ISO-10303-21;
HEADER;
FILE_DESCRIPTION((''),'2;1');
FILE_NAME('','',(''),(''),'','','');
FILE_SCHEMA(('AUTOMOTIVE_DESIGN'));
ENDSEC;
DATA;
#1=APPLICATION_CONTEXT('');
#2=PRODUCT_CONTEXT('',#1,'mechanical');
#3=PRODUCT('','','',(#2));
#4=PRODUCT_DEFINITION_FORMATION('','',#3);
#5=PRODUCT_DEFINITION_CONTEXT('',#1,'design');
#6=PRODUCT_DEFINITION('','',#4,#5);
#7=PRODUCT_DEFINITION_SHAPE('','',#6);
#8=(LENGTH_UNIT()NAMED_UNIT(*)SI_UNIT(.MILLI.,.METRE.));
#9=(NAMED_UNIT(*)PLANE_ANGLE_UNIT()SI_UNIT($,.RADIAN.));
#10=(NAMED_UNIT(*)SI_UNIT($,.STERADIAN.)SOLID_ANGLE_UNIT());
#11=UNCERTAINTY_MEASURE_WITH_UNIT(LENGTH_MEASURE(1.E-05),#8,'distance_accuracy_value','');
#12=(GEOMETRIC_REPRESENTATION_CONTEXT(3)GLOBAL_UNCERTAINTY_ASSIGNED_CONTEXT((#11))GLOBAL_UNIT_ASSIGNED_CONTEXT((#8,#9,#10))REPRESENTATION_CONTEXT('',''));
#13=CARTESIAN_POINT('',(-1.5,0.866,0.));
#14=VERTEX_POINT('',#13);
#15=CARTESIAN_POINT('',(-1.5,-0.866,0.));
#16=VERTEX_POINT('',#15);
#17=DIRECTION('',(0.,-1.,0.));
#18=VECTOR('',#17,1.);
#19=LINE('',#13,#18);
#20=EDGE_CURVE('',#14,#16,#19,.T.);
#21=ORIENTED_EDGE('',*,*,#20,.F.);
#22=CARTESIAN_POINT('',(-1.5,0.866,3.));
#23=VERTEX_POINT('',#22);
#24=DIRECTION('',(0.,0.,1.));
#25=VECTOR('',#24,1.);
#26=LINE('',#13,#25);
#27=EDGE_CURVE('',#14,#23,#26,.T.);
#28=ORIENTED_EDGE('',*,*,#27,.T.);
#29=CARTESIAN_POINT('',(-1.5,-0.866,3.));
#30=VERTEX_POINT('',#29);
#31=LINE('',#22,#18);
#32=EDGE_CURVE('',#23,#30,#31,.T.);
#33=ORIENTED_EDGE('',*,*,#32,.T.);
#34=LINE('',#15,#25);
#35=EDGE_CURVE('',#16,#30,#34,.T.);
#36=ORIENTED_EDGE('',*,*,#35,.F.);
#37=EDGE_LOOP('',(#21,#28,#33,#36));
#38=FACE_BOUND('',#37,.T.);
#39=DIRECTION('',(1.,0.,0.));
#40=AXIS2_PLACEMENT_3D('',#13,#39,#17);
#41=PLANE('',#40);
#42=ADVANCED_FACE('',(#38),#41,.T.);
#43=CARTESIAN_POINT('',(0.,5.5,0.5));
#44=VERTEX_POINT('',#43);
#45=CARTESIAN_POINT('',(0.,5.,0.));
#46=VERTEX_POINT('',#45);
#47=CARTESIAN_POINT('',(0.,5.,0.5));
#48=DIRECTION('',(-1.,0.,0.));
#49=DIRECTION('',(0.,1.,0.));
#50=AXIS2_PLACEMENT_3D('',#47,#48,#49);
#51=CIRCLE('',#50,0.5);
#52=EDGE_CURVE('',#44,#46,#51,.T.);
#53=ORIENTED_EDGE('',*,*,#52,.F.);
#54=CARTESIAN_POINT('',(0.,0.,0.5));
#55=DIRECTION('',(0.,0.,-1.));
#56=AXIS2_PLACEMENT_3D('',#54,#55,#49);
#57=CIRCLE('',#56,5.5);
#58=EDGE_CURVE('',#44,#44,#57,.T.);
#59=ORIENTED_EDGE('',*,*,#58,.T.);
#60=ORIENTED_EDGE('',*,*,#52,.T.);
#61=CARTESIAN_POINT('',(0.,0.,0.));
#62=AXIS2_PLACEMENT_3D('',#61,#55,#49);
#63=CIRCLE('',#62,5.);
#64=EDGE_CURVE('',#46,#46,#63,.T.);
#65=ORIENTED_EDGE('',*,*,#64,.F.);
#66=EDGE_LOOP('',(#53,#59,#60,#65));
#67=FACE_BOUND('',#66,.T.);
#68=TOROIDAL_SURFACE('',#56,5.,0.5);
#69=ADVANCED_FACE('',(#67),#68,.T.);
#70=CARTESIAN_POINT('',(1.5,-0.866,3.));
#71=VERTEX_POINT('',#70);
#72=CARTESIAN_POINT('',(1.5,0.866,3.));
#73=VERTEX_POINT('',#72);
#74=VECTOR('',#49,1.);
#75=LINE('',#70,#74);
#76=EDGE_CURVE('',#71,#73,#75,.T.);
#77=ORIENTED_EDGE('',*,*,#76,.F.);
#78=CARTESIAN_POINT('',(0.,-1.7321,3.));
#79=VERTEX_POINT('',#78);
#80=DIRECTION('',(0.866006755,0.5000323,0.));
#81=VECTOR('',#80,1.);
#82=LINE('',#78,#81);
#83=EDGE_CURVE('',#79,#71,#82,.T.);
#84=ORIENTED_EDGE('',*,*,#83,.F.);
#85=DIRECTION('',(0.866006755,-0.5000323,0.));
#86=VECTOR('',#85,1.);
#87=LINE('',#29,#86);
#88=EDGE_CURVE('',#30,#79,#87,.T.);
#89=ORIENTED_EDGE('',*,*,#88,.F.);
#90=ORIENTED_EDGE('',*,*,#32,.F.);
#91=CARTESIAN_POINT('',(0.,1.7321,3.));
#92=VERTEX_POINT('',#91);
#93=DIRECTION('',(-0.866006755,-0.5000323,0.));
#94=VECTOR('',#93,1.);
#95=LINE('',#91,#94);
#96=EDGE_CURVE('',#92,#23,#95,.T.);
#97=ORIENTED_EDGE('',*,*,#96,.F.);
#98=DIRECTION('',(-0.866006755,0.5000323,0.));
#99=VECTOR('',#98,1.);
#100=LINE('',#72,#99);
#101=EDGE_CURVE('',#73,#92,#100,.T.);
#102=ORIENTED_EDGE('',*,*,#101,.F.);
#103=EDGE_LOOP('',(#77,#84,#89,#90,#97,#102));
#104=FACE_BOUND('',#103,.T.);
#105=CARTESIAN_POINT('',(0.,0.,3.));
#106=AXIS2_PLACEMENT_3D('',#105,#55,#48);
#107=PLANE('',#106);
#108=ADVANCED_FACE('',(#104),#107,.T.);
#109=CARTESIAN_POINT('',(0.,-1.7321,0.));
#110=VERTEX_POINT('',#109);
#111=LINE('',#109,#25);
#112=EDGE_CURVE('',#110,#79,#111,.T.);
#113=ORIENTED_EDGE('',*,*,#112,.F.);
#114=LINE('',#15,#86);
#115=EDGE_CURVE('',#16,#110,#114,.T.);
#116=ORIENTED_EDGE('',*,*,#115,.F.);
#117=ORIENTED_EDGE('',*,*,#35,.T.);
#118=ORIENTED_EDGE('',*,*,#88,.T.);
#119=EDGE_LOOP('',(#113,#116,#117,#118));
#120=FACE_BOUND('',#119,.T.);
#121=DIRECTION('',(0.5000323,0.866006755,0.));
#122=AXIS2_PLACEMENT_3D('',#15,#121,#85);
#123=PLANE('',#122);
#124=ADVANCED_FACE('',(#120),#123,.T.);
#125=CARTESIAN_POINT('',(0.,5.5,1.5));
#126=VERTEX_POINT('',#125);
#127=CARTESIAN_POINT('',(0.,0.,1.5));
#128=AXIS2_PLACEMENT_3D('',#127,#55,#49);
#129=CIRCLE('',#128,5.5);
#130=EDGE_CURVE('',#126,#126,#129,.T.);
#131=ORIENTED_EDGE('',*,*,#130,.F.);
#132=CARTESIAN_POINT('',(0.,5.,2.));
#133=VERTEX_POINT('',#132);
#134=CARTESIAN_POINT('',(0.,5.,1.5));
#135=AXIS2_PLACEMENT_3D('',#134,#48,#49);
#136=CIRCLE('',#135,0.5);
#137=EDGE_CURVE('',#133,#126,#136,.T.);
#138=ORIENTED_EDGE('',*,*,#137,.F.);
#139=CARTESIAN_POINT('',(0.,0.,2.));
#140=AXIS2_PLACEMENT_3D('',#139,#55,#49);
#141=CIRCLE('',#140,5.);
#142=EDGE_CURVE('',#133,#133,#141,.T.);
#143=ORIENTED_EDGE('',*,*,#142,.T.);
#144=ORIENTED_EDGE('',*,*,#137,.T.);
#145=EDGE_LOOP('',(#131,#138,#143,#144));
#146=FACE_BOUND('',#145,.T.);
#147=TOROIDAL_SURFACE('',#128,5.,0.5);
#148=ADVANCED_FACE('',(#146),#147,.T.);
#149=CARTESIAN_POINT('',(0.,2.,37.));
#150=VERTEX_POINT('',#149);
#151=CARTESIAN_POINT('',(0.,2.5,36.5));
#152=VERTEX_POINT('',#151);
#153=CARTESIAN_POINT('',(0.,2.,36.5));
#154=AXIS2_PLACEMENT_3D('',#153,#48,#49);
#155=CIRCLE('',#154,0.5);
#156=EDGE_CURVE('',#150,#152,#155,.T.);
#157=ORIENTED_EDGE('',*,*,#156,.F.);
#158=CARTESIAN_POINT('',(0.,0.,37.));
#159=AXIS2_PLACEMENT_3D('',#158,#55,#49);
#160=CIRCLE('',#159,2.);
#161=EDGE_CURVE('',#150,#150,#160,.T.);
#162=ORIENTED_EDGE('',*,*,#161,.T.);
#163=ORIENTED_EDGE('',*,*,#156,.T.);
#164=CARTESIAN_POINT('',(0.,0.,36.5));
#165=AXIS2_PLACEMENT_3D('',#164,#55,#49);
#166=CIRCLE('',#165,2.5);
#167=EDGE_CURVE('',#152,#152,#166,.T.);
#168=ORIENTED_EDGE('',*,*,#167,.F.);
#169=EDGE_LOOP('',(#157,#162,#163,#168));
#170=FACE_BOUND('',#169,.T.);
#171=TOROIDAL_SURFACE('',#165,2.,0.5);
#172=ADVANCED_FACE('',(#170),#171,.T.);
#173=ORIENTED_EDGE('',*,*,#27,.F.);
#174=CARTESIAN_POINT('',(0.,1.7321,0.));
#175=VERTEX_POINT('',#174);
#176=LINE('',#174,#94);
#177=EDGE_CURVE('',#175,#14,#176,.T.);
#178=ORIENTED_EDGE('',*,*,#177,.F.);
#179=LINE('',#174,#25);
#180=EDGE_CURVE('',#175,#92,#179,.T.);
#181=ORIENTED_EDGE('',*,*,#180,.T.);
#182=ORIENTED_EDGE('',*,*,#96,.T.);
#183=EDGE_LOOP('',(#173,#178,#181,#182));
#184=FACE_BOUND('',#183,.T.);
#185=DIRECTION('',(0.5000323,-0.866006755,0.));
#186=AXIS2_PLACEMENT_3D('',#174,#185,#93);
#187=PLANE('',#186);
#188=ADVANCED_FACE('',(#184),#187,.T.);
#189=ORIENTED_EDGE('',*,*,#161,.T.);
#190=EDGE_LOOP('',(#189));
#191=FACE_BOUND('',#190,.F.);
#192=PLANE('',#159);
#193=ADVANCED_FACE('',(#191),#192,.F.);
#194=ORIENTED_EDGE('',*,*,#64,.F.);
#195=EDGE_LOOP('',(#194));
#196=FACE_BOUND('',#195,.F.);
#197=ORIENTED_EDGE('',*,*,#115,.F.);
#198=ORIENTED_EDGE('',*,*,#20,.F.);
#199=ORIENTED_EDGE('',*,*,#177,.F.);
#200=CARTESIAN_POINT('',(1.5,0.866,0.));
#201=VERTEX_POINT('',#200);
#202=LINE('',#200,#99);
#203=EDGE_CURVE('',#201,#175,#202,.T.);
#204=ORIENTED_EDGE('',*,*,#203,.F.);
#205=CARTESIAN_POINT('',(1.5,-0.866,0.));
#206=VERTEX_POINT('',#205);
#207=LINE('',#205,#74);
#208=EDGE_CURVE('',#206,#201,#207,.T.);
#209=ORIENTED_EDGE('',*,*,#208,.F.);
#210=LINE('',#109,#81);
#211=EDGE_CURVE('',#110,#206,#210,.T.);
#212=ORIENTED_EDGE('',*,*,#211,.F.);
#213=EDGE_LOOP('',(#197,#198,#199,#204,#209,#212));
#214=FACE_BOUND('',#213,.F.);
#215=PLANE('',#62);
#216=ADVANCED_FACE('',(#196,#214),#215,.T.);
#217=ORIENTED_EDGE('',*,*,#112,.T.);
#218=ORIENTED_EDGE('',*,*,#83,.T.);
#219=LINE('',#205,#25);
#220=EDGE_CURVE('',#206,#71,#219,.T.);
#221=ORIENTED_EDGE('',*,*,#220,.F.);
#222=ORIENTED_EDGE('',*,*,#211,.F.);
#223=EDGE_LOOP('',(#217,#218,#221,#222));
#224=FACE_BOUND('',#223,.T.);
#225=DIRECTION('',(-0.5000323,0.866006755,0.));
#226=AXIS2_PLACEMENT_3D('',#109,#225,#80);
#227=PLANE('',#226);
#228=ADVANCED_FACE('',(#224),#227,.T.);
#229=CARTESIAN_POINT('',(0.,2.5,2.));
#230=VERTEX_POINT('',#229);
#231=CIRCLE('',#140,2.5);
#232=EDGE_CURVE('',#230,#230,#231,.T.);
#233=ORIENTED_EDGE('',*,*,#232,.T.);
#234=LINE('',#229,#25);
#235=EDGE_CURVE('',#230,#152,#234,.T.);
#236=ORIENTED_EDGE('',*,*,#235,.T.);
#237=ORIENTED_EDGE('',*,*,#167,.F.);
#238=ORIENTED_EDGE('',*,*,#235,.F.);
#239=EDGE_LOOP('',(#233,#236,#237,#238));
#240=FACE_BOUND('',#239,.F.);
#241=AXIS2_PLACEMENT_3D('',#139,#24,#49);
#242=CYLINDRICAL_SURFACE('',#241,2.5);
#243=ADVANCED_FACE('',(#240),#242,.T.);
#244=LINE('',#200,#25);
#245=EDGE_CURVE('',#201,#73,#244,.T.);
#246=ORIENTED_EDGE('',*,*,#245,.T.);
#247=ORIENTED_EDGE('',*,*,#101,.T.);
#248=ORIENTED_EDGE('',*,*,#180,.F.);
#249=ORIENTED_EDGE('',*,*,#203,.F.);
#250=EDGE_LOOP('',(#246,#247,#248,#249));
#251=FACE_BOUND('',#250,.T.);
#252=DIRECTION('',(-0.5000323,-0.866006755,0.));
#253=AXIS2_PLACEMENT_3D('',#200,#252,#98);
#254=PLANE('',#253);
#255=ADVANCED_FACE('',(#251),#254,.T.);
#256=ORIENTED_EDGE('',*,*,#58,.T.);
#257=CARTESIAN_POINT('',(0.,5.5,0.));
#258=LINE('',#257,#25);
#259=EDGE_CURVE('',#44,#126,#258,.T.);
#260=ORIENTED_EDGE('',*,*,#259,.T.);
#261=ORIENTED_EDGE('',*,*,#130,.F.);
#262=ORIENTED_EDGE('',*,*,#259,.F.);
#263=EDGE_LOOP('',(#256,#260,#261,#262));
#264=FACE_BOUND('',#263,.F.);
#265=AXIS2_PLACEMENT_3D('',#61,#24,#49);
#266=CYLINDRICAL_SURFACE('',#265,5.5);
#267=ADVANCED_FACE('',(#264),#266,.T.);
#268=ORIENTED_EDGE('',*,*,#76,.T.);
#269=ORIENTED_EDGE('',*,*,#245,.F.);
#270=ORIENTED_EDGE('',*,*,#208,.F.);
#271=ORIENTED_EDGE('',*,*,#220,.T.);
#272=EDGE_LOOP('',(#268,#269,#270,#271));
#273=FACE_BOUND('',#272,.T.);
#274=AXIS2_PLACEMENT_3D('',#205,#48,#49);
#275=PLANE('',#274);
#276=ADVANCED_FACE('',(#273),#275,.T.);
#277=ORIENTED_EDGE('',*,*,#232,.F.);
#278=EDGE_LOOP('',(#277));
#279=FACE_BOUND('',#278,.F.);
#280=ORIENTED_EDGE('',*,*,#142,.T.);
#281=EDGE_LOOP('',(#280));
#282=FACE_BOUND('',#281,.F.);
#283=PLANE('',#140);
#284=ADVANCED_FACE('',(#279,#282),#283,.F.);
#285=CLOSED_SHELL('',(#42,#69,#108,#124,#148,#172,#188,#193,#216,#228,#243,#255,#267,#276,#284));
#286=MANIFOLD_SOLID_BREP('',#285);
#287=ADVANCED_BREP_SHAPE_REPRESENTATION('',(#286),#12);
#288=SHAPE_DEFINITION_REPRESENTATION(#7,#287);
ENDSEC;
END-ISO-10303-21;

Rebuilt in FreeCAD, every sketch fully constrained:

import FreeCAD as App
import Part
import Sketcher
from FreeCAD import Vector


def edges_at(feature, points):
    """Names of the edges that pass closest to the given points."""
    edges = feature.Shape.Edges
    near = lambda p: min(range(len(edges)), key=lambda i: edges[i].distToShape(Part.Vertex(*p))[0])
    return sorted({f"Edge{near(p) + 1}" for p in points})


def add_polygon(sketch, points):
    """Adds a closed chain of lines whose ends are joined by coincident constraints."""
    first, n = sketch.GeometryCount, len(points)
    for a, b in zip(points, points[1:] + points[:1]):
        sketch.addGeometry(Part.LineSegment(App.Vector(*a, 0), App.Vector(*b, 0)), False)
    for i in range(n):
        sketch.addConstraint(Sketcher.Constraint("Coincident", first + i, 2, first + (i + 1) % n, 1))

doc = App.newDocument("Part")
body = doc.addObject("PartDesign::Body", "Body")

# Sketch on YZ plane
sketch1 = body.newObject("Sketcher::SketchObject", "Sketch")
sketch1.AttachmentSupport = (doc.getObject("YZ_Plane"), [""])
sketch1.MapMode = "FlatFace"
add_polygon(sketch1, [(0, 37), (0, 0), (5.5, 0), (5.5, 2), (2.5, 2), (2.5, 37)])  # lines 0-5
sketch1.addConstraint(Sketcher.Constraint("Vertical", 0))
sketch1.addConstraint(Sketcher.Constraint("Horizontal", 1))
sketch1.addConstraint(Sketcher.Constraint("Vertical", 2))
sketch1.addConstraint(Sketcher.Constraint("Horizontal", 3))
sketch1.addConstraint(Sketcher.Constraint("Vertical", 4))
sketch1.addConstraint(Sketcher.Constraint("Horizontal", 5))
sketch1.addConstraint(Sketcher.Constraint("Coincident", 0, 2, -1, 1))
sketch1.addConstraint(Sketcher.Constraint("DistanceY", 2, 1, 2, 2, 2.0))
sketch1.addConstraint(Sketcher.Constraint("DistanceY", 4, 1, 4, 2, 35.0))
sketch1.addConstraint(Sketcher.Constraint("DistanceX", 1, 1, 1, 2, 5.5))
sketch1.addConstraint(Sketcher.Constraint("DistanceX", 5, 2, 5, 1, 2.5))
revolution = body.newObject("PartDesign::Revolution", "Revolution")
revolution.Profile = sketch1
revolution.ReferenceAxis = (sketch1, ["V_Axis"])
revolution.Angle = 360
doc.recompute()

fillet = body.newObject("PartDesign::Fillet", "Fillet")
fillet.Base = (revolution, edges_at(revolution, [(0, -5.5, 0), (0, -5.5, 2), (0, -2.5, 37)]))
fillet.Radius = 0.5

# Sketch on XY plane
sketch2 = body.newObject("Sketcher::SketchObject", "Sketch001")
sketch2.AttachmentSupport = (doc.getObject("XY_Plane"), [""])
sketch2.MapMode = "FlatFace"
add_polygon(sketch2, [(0, -1.7), (-1.5, -0.9), (-1.5, 0.9), (0, 1.7), (1.5, 0.9), (1.5, -0.9)])  # lines 0-5
sketch2.addConstraint(Sketcher.Constraint("Vertical", 1))
sketch2.addConstraint(Sketcher.Constraint("Vertical", 4))
sketch2.addConstraint(Sketcher.Constraint("Symmetric", 0, 2, 3, 2, -1, 1))
sketch2.addConstraint(Sketcher.Constraint("Symmetric", 2, 2, 5, 2, -1, 1))
sketch2.addConstraint(Sketcher.Constraint("PointOnObject", 2, 2, -2))
sketch2.addConstraint(Sketcher.Constraint("Parallel", 2, 5))
sketch2.addConstraint(Sketcher.Constraint("Horizontal", 1, 2, 3, 2))
sketch2.addConstraint(Sketcher.Constraint("DistanceX", 1, 2, 3, 2, 3.0))
sketch2.addConstraint(Sketcher.Constraint("DistanceY", 1, 1, 1, 2, 1.732))
sketch2.addConstraint(Sketcher.Constraint("Distance", 0, 1.732))
pocket1 = body.newObject("PartDesign::Pocket", "Pocket")
pocket1.Profile = sketch2
pocket1.Length = 3
pocket1.Reversed = True

doc.recompute()
